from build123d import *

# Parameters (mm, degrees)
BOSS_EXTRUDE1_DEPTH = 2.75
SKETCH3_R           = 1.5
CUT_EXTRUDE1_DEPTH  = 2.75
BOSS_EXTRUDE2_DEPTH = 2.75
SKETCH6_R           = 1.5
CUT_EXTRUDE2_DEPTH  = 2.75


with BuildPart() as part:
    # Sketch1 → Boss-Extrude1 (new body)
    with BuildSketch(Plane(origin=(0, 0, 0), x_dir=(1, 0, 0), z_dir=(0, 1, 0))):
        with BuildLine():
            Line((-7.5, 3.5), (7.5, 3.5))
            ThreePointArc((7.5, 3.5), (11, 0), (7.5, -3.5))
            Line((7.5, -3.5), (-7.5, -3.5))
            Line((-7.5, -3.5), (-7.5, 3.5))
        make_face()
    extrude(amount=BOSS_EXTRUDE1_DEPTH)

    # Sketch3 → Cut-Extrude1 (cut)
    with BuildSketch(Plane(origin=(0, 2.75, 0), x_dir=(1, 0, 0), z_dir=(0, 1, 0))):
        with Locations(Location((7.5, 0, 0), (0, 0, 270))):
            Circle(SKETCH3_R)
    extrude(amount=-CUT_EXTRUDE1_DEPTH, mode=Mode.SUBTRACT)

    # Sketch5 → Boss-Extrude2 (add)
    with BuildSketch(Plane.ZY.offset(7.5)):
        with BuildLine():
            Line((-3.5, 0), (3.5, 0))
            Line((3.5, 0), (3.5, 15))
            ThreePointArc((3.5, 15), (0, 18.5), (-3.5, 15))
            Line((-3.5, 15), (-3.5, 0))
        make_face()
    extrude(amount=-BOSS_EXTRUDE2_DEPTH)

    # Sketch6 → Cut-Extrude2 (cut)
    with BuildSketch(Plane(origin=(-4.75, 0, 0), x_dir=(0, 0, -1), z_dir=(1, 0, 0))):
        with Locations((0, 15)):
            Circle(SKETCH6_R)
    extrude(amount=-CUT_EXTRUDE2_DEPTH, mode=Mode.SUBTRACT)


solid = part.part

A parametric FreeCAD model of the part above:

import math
import FreeCAD as App
import Part
import Sketcher
Q = App.Units.Quantity

doc = App.newDocument("Part")
params = doc.addObject("Spreadsheet::Sheet", "Params")
for row, (alias, value) in enumerate([
    ("sketch1_radius", "3.5 mm"),
    ("sketch1_width", "15 mm"),
    ("pad1_length", "2.75 mm"),
    ("sketch2_diameter", "3 mm"),
    ("pocket1_length", "2.75 mm"),
    ("sketch3_radius", "3.5 mm"),
    ("sketch3_width", "15 mm"),
    ("pad2_length", "2.75 mm"),
    ("sketch4_diameter", "3 mm"),
    ("pocket2_length", "2.75 mm"),
], start=1):
    params.set(f"A{row}", alias)
    params.set(f"B{row}", "=" + value)
    params.setAlias(f"B{row}", alias)

body = doc.addObject("PartDesign::Body", "Body")

sketch1 = body.newObject("Sketcher::SketchObject", "Sketch")
sketch1.AttachmentSupport = (doc.getObject("XZ_Plane"), [""])
sketch1.MapMode = "FlatFace"
sketch1.addGeometry([
    Part.LineSegment(App.Vector(7.5, -3.5, 0), App.Vector(-7.5, -3.5, 0)),
    Part.LineSegment(App.Vector(-7.5, -3.5, 0), App.Vector(-7.5, 3.5, 0)),
    Part.LineSegment(App.Vector(-7.5, 3.5, 0), App.Vector(7.5, 3.5, 0)),
    Part.ArcOfCircle(Part.Circle(App.Vector(7.5, 0, 0), App.Vector(0, 0, 1), 3.5), math.radians(-90), math.radians(90)),
], False)
sketch1.addConstraint([
    Sketcher.Constraint("Coincident", 0, 2, 1, 1),
    Sketcher.Constraint("Coincident", 1, 2, 2, 1),
    Sketcher.Constraint("Tangent", 2, 2, 3, 2),
    Sketcher.Constraint("Tangent", 3, 1, 0, 1),
    Sketcher.Constraint("Horizontal", 0),
    Sketcher.Constraint("Vertical", 1),
    Sketcher.Constraint("Horizontal", 2),
    Sketcher.Constraint("Symmetric", 0, 2, 2, 2, -1, 1),
    Sketcher.Constraint("Radius", 3, Q("3.5 mm")),
    Sketcher.Constraint("DistanceX", 0, 2, 0, 1, Q("15 mm")),
])
sketch1.setExpression("Constraints[8]", "Params.sketch1_radius")
sketch1.setExpression("Constraints[9]", "Params.sketch1_width")
pad1 = body.newObject("PartDesign::Pad", "Pad")
pad1.Profile = sketch1
pad1.setExpression("Length", "Params.pad1_length")
pad1.Reversed = True

sketch2 = body.newObject("Sketcher::SketchObject", "Sketch001")
sketch2.AttachmentSupport = (doc.getObject("XZ_Plane"), [""])
sketch2.MapMode = "FlatFace"
sketch2.AttachmentOffset = App.Placement(App.Vector(0, 0, -2.75), App.Rotation())
sketch2.addGeometry(Part.Circle(App.Vector(7.5, 0, 0), App.Vector(0, 0, 1), 1.5), False)
sketch2.addConstraint([
    Sketcher.Constraint("PointOnObject", 0, 3, -1),
    Sketcher.Constraint("Diameter", 0, Q("3 mm")),
    Sketcher.Constraint("DistanceX", -1, 1, 0, 3, Q("7.5 mm")),
])
sketch2.setExpression("Constraints[1]", "Params.sketch2_diameter")
pocket1 = body.newObject("PartDesign::Pocket", "Pocket")
pocket1.Profile = sketch2
pocket1.setExpression("Length", "Params.pocket1_length")
pocket1.Reversed = True

sketch3 = body.newObject("Sketcher::SketchObject", "Sketch002")
sketch3.AttachmentSupport = (doc.getObject("YZ_Plane"), [""])
sketch3.MapMode = "FlatFace"
sketch3.AttachmentOffset = App.Placement(App.Vector(0, 0, -7.5), App.Rotation())
sketch3.addGeometry([
    Part.LineSegment(App.Vector(0, -3.5, 0), App.Vector(0, 3.5, 0)),
    Part.LineSegment(App.Vector(0, 3.5, 0), App.Vector(15, 3.5, 0)),
    Part.ArcOfCircle(Part.Circle(App.Vector(15, 0, 0), App.Vector(0, 0, 1), 3.5), math.radians(-90), math.radians(90)),
    Part.LineSegment(App.Vector(15, -3.5, 0), App.Vector(0, -3.5, 0)),
], False)
sketch3.addConstraint([
    Sketcher.Constraint("Coincident", 0, 2, 1, 1),
    Sketcher.Constraint("Tangent", 1, 2, 2, 2),
    Sketcher.Constraint("Tangent", 2, 1, 3, 1),
    Sketcher.Constraint("Coincident", 3, 2, 0, 1),
    Sketcher.Constraint("Vertical", 0),
    Sketcher.Constraint("Horizontal", 1),
    Sketcher.Constraint("Horizontal", 3),
    Sketcher.Constraint("Symmetric", 0, 2, 3, 2, -1, 1),
    Sketcher.Constraint("Radius", 2, Q("3.5 mm")),
    Sketcher.Constraint("DistanceX", 1, 1, 1, 2, Q("15 mm")),
])
sketch3.setExpression("Constraints[8]", "Params.sketch3_radius")
sketch3.setExpression("Constraints[9]", "Params.sketch3_width")
pad2 = body.newObject("PartDesign::Pad", "Pad001")
pad2.Profile = sketch3
pad2.setExpression("Length", "Params.pad2_length")

sketch4 = body.newObject("Sketcher::SketchObject", "Sketch003")
sketch4.AttachmentSupport = (doc.getObject("YZ_Plane"), [""])
sketch4.MapMode = "FlatFace"
sketch4.AttachmentOffset = App.Placement(App.Vector(0, 0, -4.75), App.Rotation())
sketch4.addGeometry(Part.Circle(App.Vector(15, 0, 0), App.Vector(0, 0, 1), 1.5), False)
sketch4.addConstraint([
    Sketcher.Constraint("PointOnObject", 0, 3, -1),
    Sketcher.Constraint("Diameter", 0, Q("3 mm")),
    Sketcher.Constraint("DistanceX", -1, 1, 0, 3, Q("15 mm")),
])
sketch4.setExpression("Constraints[1]", "Params.sketch4_diameter")
pocket2 = body.newObject("PartDesign::Pocket", "Pocket001")
pocket2.Profile = sketch4
pocket2.setExpression("Length", "Params.pocket2_length")

doc.recompute()
